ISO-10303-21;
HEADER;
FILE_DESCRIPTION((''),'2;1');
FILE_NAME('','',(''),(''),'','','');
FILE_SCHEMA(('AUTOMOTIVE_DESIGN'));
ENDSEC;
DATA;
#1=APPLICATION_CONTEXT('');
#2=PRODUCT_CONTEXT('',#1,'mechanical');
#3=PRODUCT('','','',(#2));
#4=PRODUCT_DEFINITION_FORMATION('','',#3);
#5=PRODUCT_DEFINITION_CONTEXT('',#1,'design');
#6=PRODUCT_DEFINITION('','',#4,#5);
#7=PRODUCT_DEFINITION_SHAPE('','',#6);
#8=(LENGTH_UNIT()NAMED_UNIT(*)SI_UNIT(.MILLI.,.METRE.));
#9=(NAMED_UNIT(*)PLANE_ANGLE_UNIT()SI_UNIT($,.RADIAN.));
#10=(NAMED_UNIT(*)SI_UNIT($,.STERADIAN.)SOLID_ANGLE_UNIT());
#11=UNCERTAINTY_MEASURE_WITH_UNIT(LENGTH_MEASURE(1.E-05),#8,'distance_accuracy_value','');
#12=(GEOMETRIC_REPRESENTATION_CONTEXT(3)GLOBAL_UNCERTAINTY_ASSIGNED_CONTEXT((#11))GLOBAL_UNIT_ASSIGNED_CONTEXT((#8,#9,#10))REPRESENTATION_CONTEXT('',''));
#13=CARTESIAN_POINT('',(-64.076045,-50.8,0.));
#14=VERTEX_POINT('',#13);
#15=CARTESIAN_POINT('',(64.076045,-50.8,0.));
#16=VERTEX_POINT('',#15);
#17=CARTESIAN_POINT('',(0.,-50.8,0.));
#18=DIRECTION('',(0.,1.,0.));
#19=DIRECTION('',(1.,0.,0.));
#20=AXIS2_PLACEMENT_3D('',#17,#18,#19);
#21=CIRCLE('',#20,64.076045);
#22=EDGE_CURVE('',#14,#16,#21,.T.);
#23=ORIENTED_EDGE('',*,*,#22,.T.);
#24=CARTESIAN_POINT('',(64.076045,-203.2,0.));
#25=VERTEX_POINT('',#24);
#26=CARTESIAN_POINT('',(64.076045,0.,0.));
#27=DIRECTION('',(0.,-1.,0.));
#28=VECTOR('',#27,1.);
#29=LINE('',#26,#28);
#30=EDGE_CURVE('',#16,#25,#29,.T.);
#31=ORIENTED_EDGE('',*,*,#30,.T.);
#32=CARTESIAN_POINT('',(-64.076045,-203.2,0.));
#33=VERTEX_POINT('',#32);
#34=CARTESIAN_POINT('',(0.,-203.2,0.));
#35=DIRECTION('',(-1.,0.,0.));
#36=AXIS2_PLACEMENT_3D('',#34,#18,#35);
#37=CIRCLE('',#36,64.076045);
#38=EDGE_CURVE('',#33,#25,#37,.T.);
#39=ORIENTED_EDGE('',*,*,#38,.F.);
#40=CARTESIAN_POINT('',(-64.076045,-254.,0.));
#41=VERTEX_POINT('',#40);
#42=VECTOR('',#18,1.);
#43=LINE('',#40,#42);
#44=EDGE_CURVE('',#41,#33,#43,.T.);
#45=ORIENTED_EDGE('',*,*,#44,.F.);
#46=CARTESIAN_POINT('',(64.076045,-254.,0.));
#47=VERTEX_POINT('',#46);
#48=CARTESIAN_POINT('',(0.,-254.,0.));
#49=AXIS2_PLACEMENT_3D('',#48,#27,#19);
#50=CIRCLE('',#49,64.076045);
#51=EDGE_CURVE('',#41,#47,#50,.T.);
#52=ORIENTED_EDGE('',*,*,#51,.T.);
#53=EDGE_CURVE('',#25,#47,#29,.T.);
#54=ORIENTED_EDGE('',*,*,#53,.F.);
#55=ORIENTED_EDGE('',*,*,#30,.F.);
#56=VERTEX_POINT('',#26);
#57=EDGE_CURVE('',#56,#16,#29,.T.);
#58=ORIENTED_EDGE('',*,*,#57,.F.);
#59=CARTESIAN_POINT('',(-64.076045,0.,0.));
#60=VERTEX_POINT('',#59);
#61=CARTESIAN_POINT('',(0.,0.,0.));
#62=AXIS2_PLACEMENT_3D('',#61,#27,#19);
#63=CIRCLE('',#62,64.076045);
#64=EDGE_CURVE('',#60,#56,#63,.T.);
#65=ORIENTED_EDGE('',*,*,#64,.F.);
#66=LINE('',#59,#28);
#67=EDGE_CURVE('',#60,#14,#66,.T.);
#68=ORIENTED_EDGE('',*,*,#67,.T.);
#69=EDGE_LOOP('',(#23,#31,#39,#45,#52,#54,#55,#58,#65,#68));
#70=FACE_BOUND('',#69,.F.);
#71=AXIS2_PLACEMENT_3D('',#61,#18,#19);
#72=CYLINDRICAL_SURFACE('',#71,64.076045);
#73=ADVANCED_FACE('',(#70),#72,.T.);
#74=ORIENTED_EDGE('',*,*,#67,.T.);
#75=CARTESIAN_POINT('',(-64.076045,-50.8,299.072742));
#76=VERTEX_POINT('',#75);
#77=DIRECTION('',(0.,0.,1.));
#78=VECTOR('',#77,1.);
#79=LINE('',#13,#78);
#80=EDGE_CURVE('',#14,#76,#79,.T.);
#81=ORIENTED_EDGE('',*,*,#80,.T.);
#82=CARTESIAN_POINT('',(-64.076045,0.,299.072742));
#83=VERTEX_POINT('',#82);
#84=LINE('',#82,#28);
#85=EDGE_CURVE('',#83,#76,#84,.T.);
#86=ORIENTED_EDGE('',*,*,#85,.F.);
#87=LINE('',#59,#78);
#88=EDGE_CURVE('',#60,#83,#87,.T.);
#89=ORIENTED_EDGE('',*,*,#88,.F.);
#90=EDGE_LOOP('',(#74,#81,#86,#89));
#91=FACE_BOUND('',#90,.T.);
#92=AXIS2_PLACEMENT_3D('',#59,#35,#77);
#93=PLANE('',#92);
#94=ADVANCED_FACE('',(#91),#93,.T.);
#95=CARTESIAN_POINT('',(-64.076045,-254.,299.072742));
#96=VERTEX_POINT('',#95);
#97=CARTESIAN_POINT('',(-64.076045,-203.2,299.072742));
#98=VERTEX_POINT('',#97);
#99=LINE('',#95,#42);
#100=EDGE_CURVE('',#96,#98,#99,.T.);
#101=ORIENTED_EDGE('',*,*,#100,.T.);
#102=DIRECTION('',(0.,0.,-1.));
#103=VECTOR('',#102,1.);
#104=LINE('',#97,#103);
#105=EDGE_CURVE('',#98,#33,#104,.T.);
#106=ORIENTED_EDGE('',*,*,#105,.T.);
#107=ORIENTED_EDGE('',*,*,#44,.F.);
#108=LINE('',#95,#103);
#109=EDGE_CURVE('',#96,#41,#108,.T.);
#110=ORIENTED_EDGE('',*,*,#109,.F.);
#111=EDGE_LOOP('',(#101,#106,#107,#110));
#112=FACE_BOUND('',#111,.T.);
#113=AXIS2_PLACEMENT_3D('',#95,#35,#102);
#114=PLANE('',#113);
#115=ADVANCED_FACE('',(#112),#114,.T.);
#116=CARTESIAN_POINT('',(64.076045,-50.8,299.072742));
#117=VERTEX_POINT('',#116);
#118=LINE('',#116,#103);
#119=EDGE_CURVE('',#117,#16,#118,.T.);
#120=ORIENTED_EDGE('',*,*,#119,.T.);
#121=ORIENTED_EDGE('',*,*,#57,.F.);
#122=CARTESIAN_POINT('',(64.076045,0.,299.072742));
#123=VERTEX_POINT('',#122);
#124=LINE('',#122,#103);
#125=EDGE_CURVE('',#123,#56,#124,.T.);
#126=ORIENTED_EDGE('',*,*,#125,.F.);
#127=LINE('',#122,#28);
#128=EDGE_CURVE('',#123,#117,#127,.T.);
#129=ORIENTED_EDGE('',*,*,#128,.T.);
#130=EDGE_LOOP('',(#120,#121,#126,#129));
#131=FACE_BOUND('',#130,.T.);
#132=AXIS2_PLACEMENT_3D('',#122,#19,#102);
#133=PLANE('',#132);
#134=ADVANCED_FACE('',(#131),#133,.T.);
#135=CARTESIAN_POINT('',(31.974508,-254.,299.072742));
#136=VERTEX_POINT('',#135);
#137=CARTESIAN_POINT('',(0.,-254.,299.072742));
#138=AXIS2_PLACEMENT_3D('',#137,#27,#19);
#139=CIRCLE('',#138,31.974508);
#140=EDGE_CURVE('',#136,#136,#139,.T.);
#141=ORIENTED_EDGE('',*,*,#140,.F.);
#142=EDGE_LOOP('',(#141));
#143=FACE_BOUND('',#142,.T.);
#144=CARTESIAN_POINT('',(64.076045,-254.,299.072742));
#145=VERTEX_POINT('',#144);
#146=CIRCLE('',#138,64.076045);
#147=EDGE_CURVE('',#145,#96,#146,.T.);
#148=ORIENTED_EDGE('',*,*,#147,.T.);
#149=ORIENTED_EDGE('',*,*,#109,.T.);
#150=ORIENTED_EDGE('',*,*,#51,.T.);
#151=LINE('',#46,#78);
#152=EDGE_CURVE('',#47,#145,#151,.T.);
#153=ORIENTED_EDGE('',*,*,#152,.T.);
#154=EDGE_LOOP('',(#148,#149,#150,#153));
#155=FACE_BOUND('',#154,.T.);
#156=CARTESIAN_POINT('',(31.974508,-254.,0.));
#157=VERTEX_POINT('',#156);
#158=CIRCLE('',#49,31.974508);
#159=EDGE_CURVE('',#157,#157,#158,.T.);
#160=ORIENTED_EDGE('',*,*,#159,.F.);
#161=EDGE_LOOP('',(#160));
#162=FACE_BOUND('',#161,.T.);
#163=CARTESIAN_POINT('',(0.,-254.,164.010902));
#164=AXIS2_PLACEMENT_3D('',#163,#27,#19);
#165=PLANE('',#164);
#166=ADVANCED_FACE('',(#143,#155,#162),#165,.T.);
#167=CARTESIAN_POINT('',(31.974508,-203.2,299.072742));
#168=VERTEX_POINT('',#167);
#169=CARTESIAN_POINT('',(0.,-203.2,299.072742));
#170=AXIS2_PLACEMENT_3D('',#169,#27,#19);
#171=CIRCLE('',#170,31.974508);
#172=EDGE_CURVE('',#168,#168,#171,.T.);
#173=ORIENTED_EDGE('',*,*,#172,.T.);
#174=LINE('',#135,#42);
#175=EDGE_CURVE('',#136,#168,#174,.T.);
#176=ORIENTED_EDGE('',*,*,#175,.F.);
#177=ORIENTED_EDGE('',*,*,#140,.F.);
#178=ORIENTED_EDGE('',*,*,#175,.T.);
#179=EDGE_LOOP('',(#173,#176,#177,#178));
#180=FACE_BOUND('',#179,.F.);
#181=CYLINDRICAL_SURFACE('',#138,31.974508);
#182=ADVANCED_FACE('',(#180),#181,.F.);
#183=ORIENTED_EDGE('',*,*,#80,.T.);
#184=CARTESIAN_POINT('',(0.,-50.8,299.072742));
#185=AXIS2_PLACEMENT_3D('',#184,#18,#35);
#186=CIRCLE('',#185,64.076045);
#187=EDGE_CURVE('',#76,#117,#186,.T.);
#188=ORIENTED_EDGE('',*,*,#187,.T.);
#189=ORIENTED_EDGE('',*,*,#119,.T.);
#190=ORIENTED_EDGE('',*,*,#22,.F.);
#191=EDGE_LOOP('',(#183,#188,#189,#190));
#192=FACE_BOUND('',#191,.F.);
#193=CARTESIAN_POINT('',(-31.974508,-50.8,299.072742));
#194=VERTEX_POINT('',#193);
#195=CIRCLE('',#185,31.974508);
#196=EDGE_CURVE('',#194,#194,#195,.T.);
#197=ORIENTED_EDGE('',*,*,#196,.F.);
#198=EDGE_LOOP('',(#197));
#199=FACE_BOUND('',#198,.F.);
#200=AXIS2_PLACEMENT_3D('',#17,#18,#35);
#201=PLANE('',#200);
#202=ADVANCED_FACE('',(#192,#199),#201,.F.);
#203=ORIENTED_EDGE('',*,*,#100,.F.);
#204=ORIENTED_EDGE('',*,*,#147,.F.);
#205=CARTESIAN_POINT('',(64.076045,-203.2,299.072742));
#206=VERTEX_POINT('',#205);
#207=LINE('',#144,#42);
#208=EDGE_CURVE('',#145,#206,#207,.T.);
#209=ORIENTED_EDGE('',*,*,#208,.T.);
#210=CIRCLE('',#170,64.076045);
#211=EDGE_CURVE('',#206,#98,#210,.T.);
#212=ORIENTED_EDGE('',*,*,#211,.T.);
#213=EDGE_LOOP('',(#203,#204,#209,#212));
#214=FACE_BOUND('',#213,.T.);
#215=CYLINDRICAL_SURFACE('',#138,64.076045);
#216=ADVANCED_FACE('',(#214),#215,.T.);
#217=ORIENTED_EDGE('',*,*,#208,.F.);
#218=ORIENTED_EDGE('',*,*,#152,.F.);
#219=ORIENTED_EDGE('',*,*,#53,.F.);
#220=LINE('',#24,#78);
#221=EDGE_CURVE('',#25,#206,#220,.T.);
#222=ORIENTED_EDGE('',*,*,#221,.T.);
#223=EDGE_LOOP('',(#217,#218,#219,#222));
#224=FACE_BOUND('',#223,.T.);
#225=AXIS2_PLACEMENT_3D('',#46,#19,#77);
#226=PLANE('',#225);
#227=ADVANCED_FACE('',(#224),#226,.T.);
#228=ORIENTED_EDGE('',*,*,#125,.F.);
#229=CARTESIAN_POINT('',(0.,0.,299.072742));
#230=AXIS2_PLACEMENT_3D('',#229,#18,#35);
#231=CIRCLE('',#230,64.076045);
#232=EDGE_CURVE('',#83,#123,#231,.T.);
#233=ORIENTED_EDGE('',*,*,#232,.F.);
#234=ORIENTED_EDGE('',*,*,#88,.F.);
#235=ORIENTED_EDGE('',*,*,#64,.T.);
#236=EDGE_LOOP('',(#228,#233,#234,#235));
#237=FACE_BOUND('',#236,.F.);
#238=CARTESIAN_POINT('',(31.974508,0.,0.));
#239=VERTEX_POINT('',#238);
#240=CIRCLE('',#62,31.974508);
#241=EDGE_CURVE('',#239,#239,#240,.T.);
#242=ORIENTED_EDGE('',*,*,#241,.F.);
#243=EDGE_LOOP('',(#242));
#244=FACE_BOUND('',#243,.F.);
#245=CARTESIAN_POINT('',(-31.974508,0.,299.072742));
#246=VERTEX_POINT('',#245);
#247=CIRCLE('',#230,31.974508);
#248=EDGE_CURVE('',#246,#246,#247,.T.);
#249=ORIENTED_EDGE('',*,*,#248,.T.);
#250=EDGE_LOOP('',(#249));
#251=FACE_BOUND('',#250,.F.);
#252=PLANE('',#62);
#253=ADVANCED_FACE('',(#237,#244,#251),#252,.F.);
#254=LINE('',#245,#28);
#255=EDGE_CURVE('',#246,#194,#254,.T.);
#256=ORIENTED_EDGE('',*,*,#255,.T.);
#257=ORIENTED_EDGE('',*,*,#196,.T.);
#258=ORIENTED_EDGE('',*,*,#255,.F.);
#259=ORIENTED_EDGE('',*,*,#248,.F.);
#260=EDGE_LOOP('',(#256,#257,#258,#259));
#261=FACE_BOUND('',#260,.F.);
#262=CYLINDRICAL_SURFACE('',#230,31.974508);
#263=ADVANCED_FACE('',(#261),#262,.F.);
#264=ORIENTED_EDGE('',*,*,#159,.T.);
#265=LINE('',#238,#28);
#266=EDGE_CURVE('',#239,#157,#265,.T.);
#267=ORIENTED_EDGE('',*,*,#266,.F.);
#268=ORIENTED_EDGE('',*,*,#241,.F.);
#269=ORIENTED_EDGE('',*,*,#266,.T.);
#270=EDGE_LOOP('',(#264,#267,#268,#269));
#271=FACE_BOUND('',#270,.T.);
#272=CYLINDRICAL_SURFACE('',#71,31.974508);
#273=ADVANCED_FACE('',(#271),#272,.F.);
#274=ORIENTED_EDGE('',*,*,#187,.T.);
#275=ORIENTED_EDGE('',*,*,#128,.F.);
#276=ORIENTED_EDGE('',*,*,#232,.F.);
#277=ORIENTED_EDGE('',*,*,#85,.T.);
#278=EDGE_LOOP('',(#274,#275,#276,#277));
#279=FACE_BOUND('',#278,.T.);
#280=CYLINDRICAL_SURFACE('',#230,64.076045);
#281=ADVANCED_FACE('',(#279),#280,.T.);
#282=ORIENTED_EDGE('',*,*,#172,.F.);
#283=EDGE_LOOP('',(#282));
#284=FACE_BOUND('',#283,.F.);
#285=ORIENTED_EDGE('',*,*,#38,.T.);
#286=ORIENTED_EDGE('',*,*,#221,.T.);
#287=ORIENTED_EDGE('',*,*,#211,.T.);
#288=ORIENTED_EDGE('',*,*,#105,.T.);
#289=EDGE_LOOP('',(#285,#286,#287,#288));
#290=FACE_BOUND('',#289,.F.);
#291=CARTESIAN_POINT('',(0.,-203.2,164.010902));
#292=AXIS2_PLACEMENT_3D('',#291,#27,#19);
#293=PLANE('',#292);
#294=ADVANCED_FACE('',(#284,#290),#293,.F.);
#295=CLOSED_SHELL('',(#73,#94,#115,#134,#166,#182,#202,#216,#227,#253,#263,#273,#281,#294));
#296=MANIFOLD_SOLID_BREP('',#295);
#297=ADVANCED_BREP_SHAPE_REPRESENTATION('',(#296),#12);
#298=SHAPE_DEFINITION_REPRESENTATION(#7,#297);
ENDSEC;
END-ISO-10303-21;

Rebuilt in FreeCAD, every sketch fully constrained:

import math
import FreeCAD as App
import Part
import Sketcher

V = App.Vector

doc = App.newDocument("Part")
params = doc.addObject("Spreadsheet::Sheet", "Params")
for row, (alias, value) in enumerate([
    ("pad1_length", "10 in"),
    ("pad2_length", "2 in"),
    ("pad3_length", "2 in"),
], start=1):
    params.set(f"A{row}", alias)
    params.set(f"B{row}", "=" + value)
    params.setAlias(f"B{row}", alias)

body = doc.addObject("PartDesign::Body", "Body")

sketch1 = body.newObject("Sketcher::SketchObject", "Sketch")
sketch1.AttachmentSupport = (doc.getObject("XZ_Plane"), [""])
sketch1.MapMode = "FlatFace"
sketch1.addGeometry(Part.Circle(V(0, 0, 0), V(0, 0, 1), 64.076045), False)
sketch1.addGeometry(Part.Circle(V(0, 0, 0), V(0, 0, 1), 31.974508), False)
sketch1.addConstraint(Sketcher.Constraint("Coincident", 0, 3, -1, 1))
sketch1.addConstraint(Sketcher.Constraint("Coincident", 1, 3, -1, 1))
sketch1.addConstraint(Sketcher.Constraint("Diameter", 0, 128.15209))
sketch1.addConstraint(Sketcher.Constraint("Diameter", 1, 63.949016))
pad1 = body.newObject("PartDesign::Pad", "Pad")
pad1.Profile = sketch1
pad1.setExpression("Length", "Params.pad1_length")

sketch2 = body.newObject("Sketcher::SketchObject", "Sketch001")
sketch2.AttachmentSupport = (doc.getObject("XZ_Plane"), [""])
sketch2.MapMode = "FlatFace"
sketch2.addGeometry(Part.ArcOfCircle(Part.Circle(V(0, 0, 0), V(0, 0, 1), 64.076045), math.radians(180), math.radians(360)), False)
sketch2.addGeometry(Part.LineSegment(V(-64.076045, 0, 0), V(-64.076045, 299.072742, 0)), False)
sketch2.addGeometry(Part.ArcOfCircle(Part.Circle(V(0, 299.072742, 0), V(0, 0, 1), 64.076045), math.radians(0), math.radians(180)), False)
sketch2.addGeometry(Part.LineSegment(V(64.076045, 299.072742, 0), V(64.076045, 0, 0)), False)
sketch2.addGeometry(Part.Circle(V(0, 0, 0), V(0, 0, 1), 31.974508), False)
sketch2.addGeometry(Part.Circle(V(0, 299.072742, 0), V(0, 0, 1), 31.974508), False)
sketch2.addConstraint(Sketcher.Constraint("Tangent", 0, 1, 1, 1))
sketch2.addConstraint(Sketcher.Constraint("Tangent", 1, 2, 2, 2))
sketch2.addConstraint(Sketcher.Constraint("Tangent", 2, 1, 3, 1))
sketch2.addConstraint(Sketcher.Constraint("Tangent", 3, 2, 0, 2))
sketch2.addConstraint(Sketcher.Constraint("Vertical", 1))
sketch2.addConstraint(Sketcher.Constraint("Vertical", 3))
sketch2.addConstraint(Sketcher.Constraint("Coincident", 0, 3, -1, 1))
sketch2.addConstraint(Sketcher.Constraint("Coincident", 4, 3, -1, 1))
sketch2.addConstraint(Sketcher.Constraint("Coincident", 5, 3, 2, 3))
sketch2.addConstraint(Sketcher.Constraint("Equal", 4, 5))
sketch2.addConstraint(Sketcher.Constraint("Diameter", 4, 63.949016))
sketch2.addConstraint(Sketcher.Constraint("Radius", 0, 64.076045))
sketch2.addConstraint(Sketcher.Constraint("DistanceY", 1, 1, 1, 2, 299.072742))
pad2 = body.newObject("PartDesign::Pad", "Pad001")
pad2.Profile = sketch2
pad2.setExpression("Length", "Params.pad2_length")

sketch3 = body.newObject("Sketcher::SketchObject", "Sketch002")
sketch3.AttachmentSupport = (doc.getObject("XZ_Plane"), [""])
sketch3.MapMode = "FlatFace"
sketch3.AttachmentOffset = App.Placement(V(0, 0, 10 * 25.4), App.Rotation())
sketch3.addGeometry(Part.LineSegment(V(64.076045, 0, 0), V(64.076045, 299.072742, 0)), False)
sketch3.addGeometry(Part.ArcOfCircle(Part.Circle(V(0, 299.072742, 0), V(0, 0, 1), 64.076045), math.radians(0), math.radians(180)), False)
sketch3.addGeometry(Part.LineSegment(V(-64.076045, 299.072742, 0), V(-64.076045, 0, 0)), False)
sketch3.addGeometry(Part.ArcOfCircle(Part.Circle(V(0, 0, 0), V(0, 0, 1), 64.076045), math.radians(0), math.radians(180)), False)
sketch3.addGeometry(Part.Circle(V(0, 299.072742, 0), V(0, 0, 1), 31.974508), False)
sketch3.addConstraint(Sketcher.Constraint("Tangent", 0, 2, 1, 1))
sketch3.addConstraint(Sketcher.Constraint("Tangent", 1, 2, 2, 1))
sketch3.addConstraint(Sketcher.Constraint("Tangent", 2, 2, 3, 2))
sketch3.addConstraint(Sketcher.Constraint("Tangent", 3, 1, 0, 1))
sketch3.addConstraint(Sketcher.Constraint("Vertical", 0))
sketch3.addConstraint(Sketcher.Constraint("Vertical", 2))
sketch3.addConstraint(Sketcher.Constraint("Coincident", 3, 3, -1, 1))
sketch3.addConstraint(Sketcher.Constraint("Coincident", 4, 3, 1, 3))
sketch3.addConstraint(Sketcher.Constraint("Diameter", 4, 63.949016))
sketch3.addConstraint(Sketcher.Constraint("Radius", 1, 64.076045))
sketch3.addConstraint(Sketcher.Constraint("DistanceY", 0, 1, 0, 2, 299.072742))
pad3 = body.newObject("PartDesign::Pad", "Pad002")
pad3.Profile = sketch3
pad3.setExpression("Length", "Params.pad3_length")
pad3.Reversed = True

doc.recompute()
